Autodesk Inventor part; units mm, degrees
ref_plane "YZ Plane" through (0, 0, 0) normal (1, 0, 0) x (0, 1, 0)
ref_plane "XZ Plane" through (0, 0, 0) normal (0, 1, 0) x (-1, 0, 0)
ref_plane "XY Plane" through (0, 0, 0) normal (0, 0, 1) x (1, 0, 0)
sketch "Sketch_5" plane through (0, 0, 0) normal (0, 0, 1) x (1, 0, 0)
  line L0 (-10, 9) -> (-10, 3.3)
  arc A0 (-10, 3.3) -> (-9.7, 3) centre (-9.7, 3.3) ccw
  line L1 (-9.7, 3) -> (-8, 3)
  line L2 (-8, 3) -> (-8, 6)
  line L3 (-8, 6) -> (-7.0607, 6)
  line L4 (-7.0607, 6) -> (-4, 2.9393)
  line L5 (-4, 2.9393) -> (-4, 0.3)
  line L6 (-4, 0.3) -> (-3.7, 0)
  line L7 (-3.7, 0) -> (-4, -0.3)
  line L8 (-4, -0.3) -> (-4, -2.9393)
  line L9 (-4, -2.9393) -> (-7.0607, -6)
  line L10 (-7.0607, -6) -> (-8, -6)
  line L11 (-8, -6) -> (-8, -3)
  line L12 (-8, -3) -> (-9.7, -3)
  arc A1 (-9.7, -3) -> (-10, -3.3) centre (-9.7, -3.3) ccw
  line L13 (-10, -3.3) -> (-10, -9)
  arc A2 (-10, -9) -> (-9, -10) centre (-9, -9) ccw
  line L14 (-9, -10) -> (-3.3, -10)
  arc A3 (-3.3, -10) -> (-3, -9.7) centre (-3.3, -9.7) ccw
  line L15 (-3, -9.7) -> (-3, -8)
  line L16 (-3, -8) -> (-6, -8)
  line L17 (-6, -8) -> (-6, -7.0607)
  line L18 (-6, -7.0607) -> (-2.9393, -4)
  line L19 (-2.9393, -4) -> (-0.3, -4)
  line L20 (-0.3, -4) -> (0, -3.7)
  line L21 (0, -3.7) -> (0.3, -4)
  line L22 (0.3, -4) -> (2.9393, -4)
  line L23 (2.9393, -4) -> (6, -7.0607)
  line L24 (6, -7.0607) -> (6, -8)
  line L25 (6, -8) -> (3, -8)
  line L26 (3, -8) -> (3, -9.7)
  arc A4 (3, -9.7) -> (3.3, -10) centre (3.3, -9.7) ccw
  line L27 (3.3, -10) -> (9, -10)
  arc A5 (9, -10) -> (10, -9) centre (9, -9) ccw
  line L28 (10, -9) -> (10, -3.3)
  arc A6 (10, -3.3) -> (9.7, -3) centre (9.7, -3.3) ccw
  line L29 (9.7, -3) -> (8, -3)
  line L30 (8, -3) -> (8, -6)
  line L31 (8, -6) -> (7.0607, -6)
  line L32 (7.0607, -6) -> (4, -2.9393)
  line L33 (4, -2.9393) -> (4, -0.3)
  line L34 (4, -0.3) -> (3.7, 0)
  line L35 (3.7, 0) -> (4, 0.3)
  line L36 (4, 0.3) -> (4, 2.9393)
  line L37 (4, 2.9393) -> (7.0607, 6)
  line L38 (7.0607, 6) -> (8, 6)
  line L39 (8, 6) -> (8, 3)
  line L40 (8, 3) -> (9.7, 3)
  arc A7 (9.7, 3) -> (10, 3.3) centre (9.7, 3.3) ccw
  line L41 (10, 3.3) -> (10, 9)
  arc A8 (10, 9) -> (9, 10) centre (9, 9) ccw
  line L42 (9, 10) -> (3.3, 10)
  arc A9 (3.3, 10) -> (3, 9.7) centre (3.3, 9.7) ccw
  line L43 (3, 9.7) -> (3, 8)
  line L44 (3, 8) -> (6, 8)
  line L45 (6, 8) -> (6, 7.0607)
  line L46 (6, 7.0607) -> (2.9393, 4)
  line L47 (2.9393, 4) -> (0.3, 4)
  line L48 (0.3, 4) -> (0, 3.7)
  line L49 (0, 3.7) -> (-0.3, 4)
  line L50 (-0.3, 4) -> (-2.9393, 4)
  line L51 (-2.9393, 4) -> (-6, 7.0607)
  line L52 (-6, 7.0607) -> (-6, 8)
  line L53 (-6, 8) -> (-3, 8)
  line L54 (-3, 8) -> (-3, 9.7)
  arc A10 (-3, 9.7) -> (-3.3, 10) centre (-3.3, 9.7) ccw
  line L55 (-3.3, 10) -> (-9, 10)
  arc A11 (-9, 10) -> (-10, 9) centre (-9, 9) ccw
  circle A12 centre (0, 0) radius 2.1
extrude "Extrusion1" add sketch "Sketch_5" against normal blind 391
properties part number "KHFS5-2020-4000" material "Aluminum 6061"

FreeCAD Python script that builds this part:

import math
import FreeCAD as App
import Part
import Sketcher
from FreeCAD import Vector
Q = App.Units.Quantity

doc = App.newDocument("Part")
body = doc.addObject("PartDesign::Body", "Body")

sketch1 = body.newObject("Sketcher::SketchObject", "Sketch")
sketch1.AttachmentSupport = (doc.getObject("XY_Plane"), [""])
sketch1.MapMode = "FlatFace"
sketch1.addGeometry(Part.ArcOfCircle(Part.Circle(Vector(-9, 9, 0), Vector(0, 0, 1), 1), math.radians(90), math.radians(180)), False)
sketch1.addGeometry(Part.LineSegment(Vector(-10, 9, 0), Vector(-10, 3.3, 0)), False)
sketch1.addGeometry(Part.ArcOfCircle(Part.Circle(Vector(-9.7, 3.3, 0), Vector(0, 0, 1), 0.3), math.radians(180), math.radians(270)), False)
sketch1.addGeometry(Part.LineSegment(Vector(-9.7, 3, 0), Vector(-8, 3, 0)), False)
sketch1.addGeometry(Part.LineSegment(Vector(-8, 3, 0), Vector(-8, 6, 0)), False)
sketch1.addGeometry(Part.LineSegment(Vector(-8, 6, 0), Vector(-7.06, 6, 0)), False)
sketch1.addGeometry(Part.LineSegment(Vector(-7.06, 6, 0), Vector(-4, 2.94, 0)), False)
sketch1.addGeometry(Part.LineSegment(Vector(-4, 2.94, 0), Vector(-4, 0.3, 0)), False)
sketch1.addGeometry(Part.LineSegment(Vector(-4, 0.3, 0), Vector(-3.7, 0, 0)), False)
sketch1.addGeometry(Part.LineSegment(Vector(-3.7, 0, 0), Vector(-4, -0.3, 0)), False)
sketch1.addGeometry(Part.LineSegment(Vector(-4, -0.3, 0), Vector(-4, -2.94, 0)), False)
sketch1.addGeometry(Part.LineSegment(Vector(-4, -2.94, 0), Vector(-7.06, -6, 0)), False)
sketch1.addGeometry(Part.LineSegment(Vector(-7.06, -6, 0), Vector(-8, -6, 0)), False)
sketch1.addGeometry(Part.LineSegment(Vector(-8, -6, 0), Vector(-8, -3, 0)), False)
sketch1.addGeometry(Part.LineSegment(Vector(-8, -3, 0), Vector(-9.7, -3, 0)), False)
sketch1.addGeometry(Part.ArcOfCircle(Part.Circle(Vector(-9.7, -3.3, 0), Vector(0, 0, 1), 0.3), math.radians(90), math.radians(180)), False)
sketch1.addGeometry(Part.LineSegment(Vector(-10, -3.3, 0), Vector(-10, -9, 0)), False)
sketch1.addGeometry(Part.ArcOfCircle(Part.Circle(Vector(-9, -9, 0), Vector(0, 0, 1), 1), math.radians(180), math.radians(270)), False)
sketch1.addGeometry(Part.LineSegment(Vector(-9, -10, 0), Vector(-3.3, -10, 0)), False)
sketch1.addGeometry(Part.ArcOfCircle(Part.Circle(Vector(-3.3, -9.7, 0), Vector(0, 0, 1), 0.3), math.radians(-90), math.radians(0)), False)
sketch1.addGeometry(Part.LineSegment(Vector(-3, -9.7, 0), Vector(-3, -8, 0)), False)
sketch1.addGeometry(Part.LineSegment(Vector(-3, -8, 0), Vector(-6, -8, 0)), False)
sketch1.addGeometry(Part.LineSegment(Vector(-6, -8, 0), Vector(-6, -7.06, 0)), False)
sketch1.addGeometry(Part.LineSegment(Vector(-6, -7.06, 0), Vector(-2.94, -4, 0)), False)
sketch1.addGeometry(Part.LineSegment(Vector(-2.94, -4, 0), Vector(-0.3, -4, 0)), False)
sketch1.addGeometry(Part.LineSegment(Vector(-0.3, -4, 0), Vector(0, -3.7, 0)), False)
sketch1.addGeometry(Part.LineSegment(Vector(0, -3.7, 0), Vector(0.3, -4, 0)), False)
sketch1.addGeometry(Part.LineSegment(Vector(0.3, -4, 0), Vector(2.94, -4, 0)), False)
sketch1.addGeometry(Part.LineSegment(Vector(2.94, -4, 0), Vector(6, -7.06, 0)), False)
sketch1.addGeometry(Part.LineSegment(Vector(6, -7.06, 0), Vector(6, -8, 0)), False)
sketch1.addGeometry(Part.LineSegment(Vector(6, -8, 0), Vector(3, -8, 0)), False)
sketch1.addGeometry(Part.LineSegment(Vector(3, -8, 0), Vector(3, -9.7, 0)), False)
sketch1.addGeometry(Part.ArcOfCircle(Part.Circle(Vector(3.3, -9.7, 0), Vector(0, 0, 1), 0.3), math.radians(180), math.radians(270)), False)
sketch1.addGeometry(Part.LineSegment(Vector(3.3, -10, 0), Vector(9, -10, 0)), False)
sketch1.addGeometry(Part.ArcOfCircle(Part.Circle(Vector(9, -9, 0), Vector(0, 0, 1), 1), math.radians(-90), math.radians(0)), False)
sketch1.addGeometry(Part.LineSegment(Vector(10, -9, 0), Vector(10, -3.3, 0)), False)
sketch1.addGeometry(Part.ArcOfCircle(Part.Circle(Vector(9.7, -3.3, 0), Vector(0, 0, 1), 0.3), math.radians(0), math.radians(90)), False)
sketch1.addGeometry(Part.LineSegment(Vector(9.7, -3, 0), Vector(8, -3, 0)), False)
sketch1.addGeometry(Part.LineSegment(Vector(8, -3, 0), Vector(8, -6, 0)), False)
sketch1.addGeometry(Part.LineSegment(Vector(8, -6, 0), Vector(7.06, -6, 0)), False)
sketch1.addGeometry(Part.LineSegment(Vector(7.06, -6, 0), Vector(4, -2.94, 0)), False)
sketch1.addGeometry(Part.LineSegment(Vector(4, -2.94, 0), Vector(4, -0.3, 0)), False)
sketch1.addGeometry(Part.LineSegment(Vector(4, -0.3, 0), Vector(3.7, 0, 0)), False)
sketch1.addGeometry(Part.LineSegment(Vector(3.7, 0, 0), Vector(4, 0.3, 0)), False)
sketch1.addGeometry(Part.LineSegment(Vector(4, 0.3, 0), Vector(4, 2.94, 0)), False)
sketch1.addGeometry(Part.LineSegment(Vector(4, 2.94, 0), Vector(7.06, 6, 0)), False)
sketch1.addGeometry(Part.LineSegment(Vector(7.06, 6, 0), Vector(8, 6, 0)), False)
sketch1.addGeometry(Part.LineSegment(Vector(8, 6, 0), Vector(8, 3, 0)), False)
sketch1.addGeometry(Part.LineSegment(Vector(8, 3, 0), Vector(9.7, 3, 0)), False)
sketch1.addGeometry(Part.ArcOfCircle(Part.Circle(Vector(9.7, 3.3, 0), Vector(0, 0, 1), 0.3), math.radians(-90), math.radians(0)), False)
sketch1.addGeometry(Part.LineSegment(Vector(10, 3.3, 0), Vector(10, 9, 0)), False)
sketch1.addGeometry(Part.ArcOfCircle(Part.Circle(Vector(9, 9, 0), Vector(0, 0, 1), 1), math.radians(0), math.radians(90)), False)
sketch1.addGeometry(Part.LineSegment(Vector(9, 10, 0), Vector(3.3, 10, 0)), False)
sketch1.addGeometry(Part.ArcOfCircle(Part.Circle(Vector(3.3, 9.7, 0), Vector(0, 0, 1), 0.3), math.radians(90), math.radians(180)), False)
sketch1.addGeometry(Part.LineSegment(Vector(3, 9.7, 0), Vector(3, 8, 0)), False)
sketch1.addGeometry(Part.LineSegment(Vector(3, 8, 0), Vector(6, 8, 0)), False)
sketch1.addGeometry(Part.LineSegment(Vector(6, 8, 0), Vector(6, 7.06, 0)), False)
sketch1.addGeometry(Part.LineSegment(Vector(6, 7.06, 0), Vector(2.94, 4, 0)), False)
sketch1.addGeometry(Part.LineSegment(Vector(2.94, 4, 0), Vector(0.3, 4, 0)), False)
sketch1.addGeometry(Part.LineSegment(Vector(0.3, 4, 0), Vector(0, 3.7, 0)), False)
sketch1.addGeometry(Part.LineSegment(Vector(0, 3.7, 0), Vector(-0.3, 4, 0)), False)
sketch1.addGeometry(Part.LineSegment(Vector(-0.3, 4, 0), Vector(-2.94, 4, 0)), False)
sketch1.addGeometry(Part.LineSegment(Vector(-2.94, 4, 0), Vector(-6, 7.06, 0)), False)
sketch1.addGeometry(Part.LineSegment(Vector(-6, 7.06, 0), Vector(-6, 8, 0)), False)
sketch1.addGeometry(Part.LineSegment(Vector(-6, 8, 0), Vector(-3, 8, 0)), False)
sketch1.addGeometry(Part.LineSegment(Vector(-3, 8, 0), Vector(-3, 9.7, 0)), False)
sketch1.addGeometry(Part.ArcOfCircle(Part.Circle(Vector(-3.3, 9.7, 0), Vector(0, 0, 1), 0.3), math.radians(0), math.radians(90)), False)
sketch1.addGeometry(Part.LineSegment(Vector(-3.3, 10, 0), Vector(-9, 10, 0)), False)
sketch1.addGeometry(Part.Circle(Vector(0, 0, 0), Vector(0, 0, 1), 2.1), False)
sketch1.addConstraint(Sketcher.Constraint("Tangent", 0, 2, 1, 1))
sketch1.addConstraint(Sketcher.Constraint("Tangent", 1, 2, 2, 1))
sketch1.addConstraint(Sketcher.Constraint("Tangent", 2, 2, 3, 1))
sketch1.addConstraint(Sketcher.Constraint("Coincident", 3, 2, 4, 1))
sketch1.addConstraint(Sketcher.Constraint("Coincident", 4, 2, 5, 1))
sketch1.addConstraint(Sketcher.Constraint("Coincident", 5, 2, 6, 1))
sketch1.addConstraint(Sketcher.Constraint("Coincident", 6, 2, 7, 1))
sketch1.addConstraint(Sketcher.Constraint("Coincident", 7, 2, 8, 1))
sketch1.addConstraint(Sketcher.Constraint("Coincident", 8, 2, 9, 1))
sketch1.addConstraint(Sketcher.Constraint("Coincident", 9, 2, 10, 1))
sketch1.addConstraint(Sketcher.Constraint("Coincident", 10, 2, 11, 1))
sketch1.addConstraint(Sketcher.Constraint("Coincident", 11, 2, 12, 1))
sketch1.addConstraint(Sketcher.Constraint("Coincident", 12, 2, 13, 1))
sketch1.addConstraint(Sketcher.Constraint("Coincident", 13, 2, 14, 1))
sketch1.addConstraint(Sketcher.Constraint("Tangent", 14, 2, 15, 1))
sketch1.addConstraint(Sketcher.Constraint("Tangent", 15, 2, 16, 1))
sketch1.addConstraint(Sketcher.Constraint("Tangent", 16, 2, 17, 1))
sketch1.addConstraint(Sketcher.Constraint("Tangent", 17, 2, 18, 1))
sketch1.addConstraint(Sketcher.Constraint("Tangent", 18, 2, 19, 1))
sketch1.addConstraint(Sketcher.Constraint("Tangent", 19, 2, 20, 1))
sketch1.addConstraint(Sketcher.Constraint("Coincident", 20, 2, 21, 1))
sketch1.addConstraint(Sketcher.Constraint("Coincident", 21, 2, 22, 1))
sketch1.addConstraint(Sketcher.Constraint("Coincident", 22, 2, 23, 1))
sketch1.addConstraint(Sketcher.Constraint("Coincident", 23, 2, 24, 1))
sketch1.addConstraint(Sketcher.Constraint("Coincident", 24, 2, 25, 1))
sketch1.addConstraint(Sketcher.Constraint("Coincident", 25, 2, 26, 1))
sketch1.addConstraint(Sketcher.Constraint("Coincident", 26, 2, 27, 1))
sketch1.addConstraint(Sketcher.Constraint("Coincident", 27, 2, 28, 1))
sketch1.addConstraint(Sketcher.Constraint("Coincident", 28, 2, 29, 1))
sketch1.addConstraint(Sketcher.Constraint("Coincident", 29, 2, 30, 1))
sketch1.addConstraint(Sketcher.Constraint("Coincident", 30, 2, 31, 1))
sketch1.addConstraint(Sketcher.Constraint("Tangent", 31, 2, 32, 1))
sketch1.addConstraint(Sketcher.Constraint("Tangent", 32, 2, 33, 1))
sketch1.addConstraint(Sketcher.Constraint("Tangent", 33, 2, 34, 1))
sketch1.addConstraint(Sketcher.Constraint("Tangent", 34, 2, 35, 1))
sketch1.addConstraint(Sketcher.Constraint("Tangent", 35, 2, 36, 1))
sketch1.addConstraint(Sketcher.Constraint("Tangent", 36, 2, 37, 1))
sketch1.addConstraint(Sketcher.Constraint("Coincident", 37, 2, 38, 1))
sketch1.addConstraint(Sketcher.Constraint("Coincident", 38, 2, 39, 1))
sketch1.addConstraint(Sketcher.Constraint("Coincident", 39, 2, 40, 1))
sketch1.addConstraint(Sketcher.Constraint("Coincident", 40, 2, 41, 1))
sketch1.addConstraint(Sketcher.Constraint("Coincident", 41, 2, 42, 1))
sketch1.addConstraint(Sketcher.Constraint("Coincident", 42, 2, 43, 1))
sketch1.addConstraint(Sketcher.Constraint("Coincident", 43, 2, 44, 1))
sketch1.addConstraint(Sketcher.Constraint("Coincident", 44, 2, 45, 1))
sketch1.addConstraint(Sketcher.Constraint("Coincident", 45, 2, 46, 1))
sketch1.addConstraint(Sketcher.Constraint("Coincident", 46, 2, 47, 1))
sketch1.addConstraint(Sketcher.Constraint("Coincident", 47, 2, 48, 1))
sketch1.addConstraint(Sketcher.Constraint("Tangent", 48, 2, 49, 1))
sketch1.addConstraint(Sketcher.Constraint("Tangent", 49, 2, 50, 1))
sketch1.addConstraint(Sketcher.Constraint("Tangent", 50, 2, 51, 1))
sketch1.addConstraint(Sketcher.Constraint("Tangent", 51, 2, 52, 1))
sketch1.addConstraint(Sketcher.Constraint("Tangent", 52, 2, 53, 1))
sketch1.addConstraint(Sketcher.Constraint("Tangent", 53, 2, 54, 1))
sketch1.addConstraint(Sketcher.Constraint("Coincident", 54, 2, 55, 1))
sketch1.addConstraint(Sketcher.Constraint("Coincident", 55, 2, 56, 1))
sketch1.addConstraint(Sketcher.Constraint("Coincident", 56, 2, 57, 1))
sketch1.addConstraint(Sketcher.Constraint("Coincident", 57, 2, 58, 1))
sketch1.addConstraint(Sketcher.Constraint("Coincident", 58, 2, 59, 1))
sketch1.addConstraint(Sketcher.Constraint("Coincident", 59, 2, 60, 1))
sketch1.addConstraint(Sketcher.Constraint("Coincident", 60, 2, 61, 1))
sketch1.addConstraint(Sketcher.Constraint("Coincident", 61, 2, 62, 1))
sketch1.addConstraint(Sketcher.Constraint("Coincident", 62, 2, 63, 1))
sketch1.addConstraint(Sketcher.Constraint("Coincident", 63, 2, 64, 1))
sketch1.addConstraint(Sketcher.Constraint("Coincident", 64, 2, 65, 1))
sketch1.addConstraint(Sketcher.Constraint("Tangent", 65, 2, 66, 1))
sketch1.addConstraint(Sketcher.Constraint("Tangent", 66, 2, 67, 1))
sketch1.addConstraint(Sketcher.Constraint("Tangent", 67, 2, 0, 1))
sketch1.addConstraint(Sketcher.Constraint("Vertical", 1))
sketch1.addConstraint(Sketcher.Constraint("Horizontal", 3))
sketch1.addConstraint(Sketcher.Constraint("Vertical", 4))
sketch1.addConstraint(Sketcher.Constraint("Horizontal", 5))
sketch1.addConstraint(Sketcher.Constraint("Vertical", 7))
sketch1.addConstraint(Sketcher.Constraint("Vertical", 10))
sketch1.addConstraint(Sketcher.Constraint("Horizontal", 12))
sketch1.addConstraint(Sketcher.Constraint("Vertical", 13))
sketch1.addConstraint(Sketcher.Constraint("Horizontal", 14))
sketch1.addConstraint(Sketcher.Constraint("Vertical", 16))
sketch1.addConstraint(Sketcher.Constraint("Horizontal", 18))
sketch1.addConstraint(Sketcher.Constraint("Vertical", 20))
sketch1.addConstraint(Sketcher.Constraint("Horizontal", 21))
sketch1.addConstraint(Sketcher.Constraint("Vertical", 22))
sketch1.addConstraint(Sketcher.Constraint("Horizontal", 24))
sketch1.addConstraint(Sketcher.Constraint("Horizontal", 27))
sketch1.addConstraint(Sketcher.Constraint("Vertical", 29))
sketch1.addConstraint(Sketcher.Constraint("Horizontal", 30))
sketch1.addConstraint(Sketcher.Constraint("Vertical", 31))
sketch1.addConstraint(Sketcher.Constraint("Horizontal", 33))
sketch1.addConstraint(Sketcher.Constraint("Vertical", 35))
sketch1.addConstraint(Sketcher.Constraint("Horizontal", 37))
sketch1.addConstraint(Sketcher.Constraint("Vertical", 38))
sketch1.addConstraint(Sketcher.Constraint("Horizontal", 39))
sketch1.addConstraint(Sketcher.Constraint("Vertical", 41))
sketch1.addConstraint(Sketcher.Constraint("Vertical", 44))
sketch1.addConstraint(Sketcher.Constraint("Horizontal", 46))
sketch1.addConstraint(Sketcher.Constraint("Vertical", 47))
sketch1.addConstraint(Sketcher.Constraint("Horizontal", 48))
sketch1.addConstraint(Sketcher.Constraint("Vertical", 50))
sketch1.addConstraint(Sketcher.Constraint("Horizontal", 52))
sketch1.addConstraint(Sketcher.Constraint("Vertical", 54))
sketch1.addConstraint(Sketcher.Constraint("Horizontal", 55))
sketch1.addConstraint(Sketcher.Constraint("Vertical", 56))
sketch1.addConstraint(Sketcher.Constraint("Horizontal", 58))
sketch1.addConstraint(Sketcher.Constraint("Horizontal", 61))
sketch1.addConstraint(Sketcher.Constraint("Vertical", 63))
sketch1.addConstraint(Sketcher.Constraint("Horizontal", 64))
sketch1.addConstraint(Sketcher.Constraint("Vertical", 65))
sketch1.addConstraint(Sketcher.Constraint("Horizontal", 67))
sketch1.addConstraint(Sketcher.Constraint("Coincident", 68, 3, -1, 1))
sketch1.addConstraint(Sketcher.Constraint("Equal", 2, 15))
sketch1.addConstraint(Sketcher.Constraint("Equal", 0, 17))
sketch1.addConstraint(Sketcher.Constraint("Equal", 15, 19))
sketch1.addConstraint(Sketcher.Constraint("Equal", 19, 32))
sketch1.addConstraint(Sketcher.Constraint("Equal", 17, 34))
sketch1.addConstraint(Sketcher.Constraint("Equal", 32, 36))
sketch1.addConstraint(Sketcher.Constraint("Equal", 36, 49))
sketch1.addConstraint(Sketcher.Constraint("Equal", 34, 51))
sketch1.addConstraint(Sketcher.Constraint("Equal", 49, 53))
sketch1.addConstraint(Sketcher.Constraint("Equal", 53, 66))
sketch1.addConstraint(Sketcher.Constraint("Symmetric", 0, 3, 34, 3, -1, 1))
sketch1.addConstraint(Sketcher.Constraint("Symmetric", 15, 3, 49, 3, -1, 1))
sketch1.addConstraint(Sketcher.Constraint("Symmetric", 19, 3, 53, 3, -1, 1))
sketch1.addConstraint(Sketcher.Constraint("Symmetric", 3, 2, 37, 2, -1, 1))
sketch1.addConstraint(Sketcher.Constraint("Symmetric", 5, 2, 39, 2, -1, 1))
sketch1.addConstraint(Sketcher.Constraint("Symmetric", 6, 2, 40, 2, -1, 1))
sketch1.addConstraint(Sketcher.Constraint("Symmetric", 8, 2, 42, 2, -1, 1))
sketch1.addConstraint(Sketcher.Constraint("Symmetric", 9, 2, 43, 2, -1, 1))
sketch1.addConstraint(Sketcher.Constraint("Symmetric", 11, 2, 45, 2, -1, 1))
sketch1.addConstraint(Sketcher.Constraint("Symmetric", 21, 2, 55, 2, -1, 1))
sketch1.addConstraint(Sketcher.Constraint("Symmetric", 23, 2, 57, 2, -1, 1))
sketch1.addConstraint(Sketcher.Constraint("Symmetric", 25, 2, 59, 2, -1, 1))
sketch1.addConstraint(Sketcher.Constraint("Symmetric", 26, 2, 60, 2, -1, 1))
sketch1.addConstraint(Sketcher.Constraint("Symmetric", 28, 2, 62, 2, -1, 1))
sketch1.addConstraint(Sketcher.Constraint("Symmetric", 30, 2, 64, 2, -1, 1))
sketch1.addConstraint(Sketcher.Constraint("Symmetric", 19, 3, 32, 3, -2))
sketch1.addConstraint(Sketcher.Constraint("Symmetric", 15, 3, 36, 3, -2))
sketch1.addConstraint(Sketcher.Constraint("Symmetric", 24, 2, 26, 2, -2))
sketch1.addConstraint(Sketcher.Constraint("Symmetric", 22, 2, 28, 2, -2))
sketch1.addConstraint(Sketcher.Constraint("Symmetric", 12, 2, 38, 2, -2))
sketch1.addConstraint(Sketcher.Constraint("Symmetric", 10, 2, 40, 2, -2))
sketch1.addConstraint(Sketcher.Constraint("PointOnObject", 8, 2, -1))
sketch1.addConstraint(Sketcher.Constraint("PointOnObject", 25, 2, -2))
sketch1.addConstraint(Sketcher.Constraint("Parallel", 6, 8))
sketch1.addConstraint(Sketcher.Constraint("Perpendicular", 8, 9))
sketch1.addConstraint(Sketcher.Constraint("Parallel", 9, 11))
sketch1.addConstraint(Sketcher.Constraint("Parallel", 11, 23))
sketch1.addConstraint(Sketcher.Constraint("Parallel", 23, 25))
sketch1.addConstraint(Sketcher.Constraint("Perpendicular", 25, 26))
sketch1.addConstraint(Sketcher.Constraint("Parallel", 26, 28))
sketch1.addConstraint(Sketcher.Constraint("Parallel", 40, 42))
sketch1.addConstraint(Sketcher.Constraint("Parallel", 43, 45))
sketch1.addConstraint(Sketcher.Constraint("Parallel", 45, 57))
sketch1.addConstraint(Sketcher.Constraint("Parallel", 57, 59))
sketch1.addConstraint(Sketcher.Constraint("Parallel", 60, 62))
sketch1.addConstraint(Sketcher.Constraint("Horizontal", 21, 2, 29, 2))
sketch1.addConstraint(Sketcher.Constraint("Vertical", 38, 2, 46, 2))
sketch1.addConstraint(Sketcher.Constraint("Equal", 67, 1))
sketch1.addConstraint(Sketcher.Constraint("Equal", 64, 4))
sketch1.addConstraint(Sketcher.Constraint("Equal", 61, 7))
sketch1.addConstraint(Sketcher.Constraint("Equal", 48, 20))
sketch1.addConstraint(Sketcher.Constraint("Equal", 46, 22))
sketch1.addConstraint(Sketcher.Constraint("Equal", 11, 23))
sketch1.addConstraint(Sketcher.Constraint("Equal", 9, 25))
sketch1.addConstraint(Sketcher.Constraint("Radius", 0, Q("1 mm")))
sketch1.addConstraint(Sketcher.Constraint("Diameter", 68, Q("4.2 mm")))
sketch1.addConstraint(Sketcher.Constraint("Radius", 2, Q("0.3 mm")))
sketch1.addConstraint(Sketcher.Constraint("DistanceX", 21, 2, 21, 1, Q("3 mm")))
sketch1.addConstraint(Sketcher.Constraint("DistanceX", 3, 1, 3, 2, Q("1.7 mm")))
sketch1.addConstraint(Sketcher.Constraint("DistanceX", 18, 1, 18, 2, Q("5.7 mm")))
sketch1.addConstraint(Sketcher.Constraint("DistanceX", 0, 3, -1, 1, Q("9 mm")))
sketch1.addConstraint(Sketcher.Constraint("DistanceX", 6, 2, -1, 1, Q("4 mm")))
sketch1.addConstraint(Sketcher.Constraint("DistanceY", -1, 1, 7, 2, Q("0.3 mm")))
sketch1.addConstraint(Sketcher.Constraint("DistanceX", 5, 1, 5, 2, Q("0.9393 mm")))
pad1 = body.newObject("PartDesign::Pad", "Pad")
pad1.Profile = sketch1
pad1.Length = 391
pad1.Reversed = True

doc.recompute()
